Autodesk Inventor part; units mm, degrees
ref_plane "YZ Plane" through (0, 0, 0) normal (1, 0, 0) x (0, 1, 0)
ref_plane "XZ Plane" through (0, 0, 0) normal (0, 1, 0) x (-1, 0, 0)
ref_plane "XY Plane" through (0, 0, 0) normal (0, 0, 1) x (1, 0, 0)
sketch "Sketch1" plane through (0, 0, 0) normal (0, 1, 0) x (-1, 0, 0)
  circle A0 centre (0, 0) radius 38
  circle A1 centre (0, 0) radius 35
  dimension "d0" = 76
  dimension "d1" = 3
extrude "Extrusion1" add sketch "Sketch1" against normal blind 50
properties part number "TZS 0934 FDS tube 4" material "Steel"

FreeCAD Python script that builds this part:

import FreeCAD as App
import Part
import Sketcher

V = App.Vector

doc = App.newDocument("Part")
params = doc.addObject("Spreadsheet::Sheet", "Params")
for row, (alias, value) in enumerate([
    ("sketch1_diameter", "76 mm"),
    ("sketch1_diameter2", "70 mm"),
    ("pad1_length", "50 mm"),
], start=1):
    params.set(f"A{row}", alias)
    params.set(f"B{row}", "=" + value)
    params.setAlias(f"B{row}", alias)

body = doc.addObject("PartDesign::Body", "Body")

sketch1 = body.newObject("Sketcher::SketchObject", "Sketch")
sketch1.AttachmentSupport = (doc.getObject("XZ_Plane"), [""])
sketch1.MapMode = "FlatFace"
sketch1.addGeometry(Part.Circle(V(0, 0, 0), V(0, 0, 1), 38), False)
sketch1.addGeometry(Part.Circle(V(0, 0, 0), V(0, 0, 1), 35), False)
sketch1.addConstraint(Sketcher.Constraint("Coincident", 0, 3, -1, 1))
sketch1.addConstraint(Sketcher.Constraint("Coincident", 1, 3, -1, 1))
sketch1.addConstraint(Sketcher.Constraint("Diameter", 0, 76.0))
sketch1.addConstraint(Sketcher.Constraint("Diameter", 1, 70.0))
sketch1.setExpression("Constraints[2]", "Params.sketch1_diameter")
sketch1.setExpression("Constraints[3]", "Params.sketch1_diameter2")
pad1 = body.newObject("PartDesign::Pad", "Pad")
pad1.Profile = sketch1
pad1.setExpression("Length", "Params.pad1_length")

doc.recompute()
